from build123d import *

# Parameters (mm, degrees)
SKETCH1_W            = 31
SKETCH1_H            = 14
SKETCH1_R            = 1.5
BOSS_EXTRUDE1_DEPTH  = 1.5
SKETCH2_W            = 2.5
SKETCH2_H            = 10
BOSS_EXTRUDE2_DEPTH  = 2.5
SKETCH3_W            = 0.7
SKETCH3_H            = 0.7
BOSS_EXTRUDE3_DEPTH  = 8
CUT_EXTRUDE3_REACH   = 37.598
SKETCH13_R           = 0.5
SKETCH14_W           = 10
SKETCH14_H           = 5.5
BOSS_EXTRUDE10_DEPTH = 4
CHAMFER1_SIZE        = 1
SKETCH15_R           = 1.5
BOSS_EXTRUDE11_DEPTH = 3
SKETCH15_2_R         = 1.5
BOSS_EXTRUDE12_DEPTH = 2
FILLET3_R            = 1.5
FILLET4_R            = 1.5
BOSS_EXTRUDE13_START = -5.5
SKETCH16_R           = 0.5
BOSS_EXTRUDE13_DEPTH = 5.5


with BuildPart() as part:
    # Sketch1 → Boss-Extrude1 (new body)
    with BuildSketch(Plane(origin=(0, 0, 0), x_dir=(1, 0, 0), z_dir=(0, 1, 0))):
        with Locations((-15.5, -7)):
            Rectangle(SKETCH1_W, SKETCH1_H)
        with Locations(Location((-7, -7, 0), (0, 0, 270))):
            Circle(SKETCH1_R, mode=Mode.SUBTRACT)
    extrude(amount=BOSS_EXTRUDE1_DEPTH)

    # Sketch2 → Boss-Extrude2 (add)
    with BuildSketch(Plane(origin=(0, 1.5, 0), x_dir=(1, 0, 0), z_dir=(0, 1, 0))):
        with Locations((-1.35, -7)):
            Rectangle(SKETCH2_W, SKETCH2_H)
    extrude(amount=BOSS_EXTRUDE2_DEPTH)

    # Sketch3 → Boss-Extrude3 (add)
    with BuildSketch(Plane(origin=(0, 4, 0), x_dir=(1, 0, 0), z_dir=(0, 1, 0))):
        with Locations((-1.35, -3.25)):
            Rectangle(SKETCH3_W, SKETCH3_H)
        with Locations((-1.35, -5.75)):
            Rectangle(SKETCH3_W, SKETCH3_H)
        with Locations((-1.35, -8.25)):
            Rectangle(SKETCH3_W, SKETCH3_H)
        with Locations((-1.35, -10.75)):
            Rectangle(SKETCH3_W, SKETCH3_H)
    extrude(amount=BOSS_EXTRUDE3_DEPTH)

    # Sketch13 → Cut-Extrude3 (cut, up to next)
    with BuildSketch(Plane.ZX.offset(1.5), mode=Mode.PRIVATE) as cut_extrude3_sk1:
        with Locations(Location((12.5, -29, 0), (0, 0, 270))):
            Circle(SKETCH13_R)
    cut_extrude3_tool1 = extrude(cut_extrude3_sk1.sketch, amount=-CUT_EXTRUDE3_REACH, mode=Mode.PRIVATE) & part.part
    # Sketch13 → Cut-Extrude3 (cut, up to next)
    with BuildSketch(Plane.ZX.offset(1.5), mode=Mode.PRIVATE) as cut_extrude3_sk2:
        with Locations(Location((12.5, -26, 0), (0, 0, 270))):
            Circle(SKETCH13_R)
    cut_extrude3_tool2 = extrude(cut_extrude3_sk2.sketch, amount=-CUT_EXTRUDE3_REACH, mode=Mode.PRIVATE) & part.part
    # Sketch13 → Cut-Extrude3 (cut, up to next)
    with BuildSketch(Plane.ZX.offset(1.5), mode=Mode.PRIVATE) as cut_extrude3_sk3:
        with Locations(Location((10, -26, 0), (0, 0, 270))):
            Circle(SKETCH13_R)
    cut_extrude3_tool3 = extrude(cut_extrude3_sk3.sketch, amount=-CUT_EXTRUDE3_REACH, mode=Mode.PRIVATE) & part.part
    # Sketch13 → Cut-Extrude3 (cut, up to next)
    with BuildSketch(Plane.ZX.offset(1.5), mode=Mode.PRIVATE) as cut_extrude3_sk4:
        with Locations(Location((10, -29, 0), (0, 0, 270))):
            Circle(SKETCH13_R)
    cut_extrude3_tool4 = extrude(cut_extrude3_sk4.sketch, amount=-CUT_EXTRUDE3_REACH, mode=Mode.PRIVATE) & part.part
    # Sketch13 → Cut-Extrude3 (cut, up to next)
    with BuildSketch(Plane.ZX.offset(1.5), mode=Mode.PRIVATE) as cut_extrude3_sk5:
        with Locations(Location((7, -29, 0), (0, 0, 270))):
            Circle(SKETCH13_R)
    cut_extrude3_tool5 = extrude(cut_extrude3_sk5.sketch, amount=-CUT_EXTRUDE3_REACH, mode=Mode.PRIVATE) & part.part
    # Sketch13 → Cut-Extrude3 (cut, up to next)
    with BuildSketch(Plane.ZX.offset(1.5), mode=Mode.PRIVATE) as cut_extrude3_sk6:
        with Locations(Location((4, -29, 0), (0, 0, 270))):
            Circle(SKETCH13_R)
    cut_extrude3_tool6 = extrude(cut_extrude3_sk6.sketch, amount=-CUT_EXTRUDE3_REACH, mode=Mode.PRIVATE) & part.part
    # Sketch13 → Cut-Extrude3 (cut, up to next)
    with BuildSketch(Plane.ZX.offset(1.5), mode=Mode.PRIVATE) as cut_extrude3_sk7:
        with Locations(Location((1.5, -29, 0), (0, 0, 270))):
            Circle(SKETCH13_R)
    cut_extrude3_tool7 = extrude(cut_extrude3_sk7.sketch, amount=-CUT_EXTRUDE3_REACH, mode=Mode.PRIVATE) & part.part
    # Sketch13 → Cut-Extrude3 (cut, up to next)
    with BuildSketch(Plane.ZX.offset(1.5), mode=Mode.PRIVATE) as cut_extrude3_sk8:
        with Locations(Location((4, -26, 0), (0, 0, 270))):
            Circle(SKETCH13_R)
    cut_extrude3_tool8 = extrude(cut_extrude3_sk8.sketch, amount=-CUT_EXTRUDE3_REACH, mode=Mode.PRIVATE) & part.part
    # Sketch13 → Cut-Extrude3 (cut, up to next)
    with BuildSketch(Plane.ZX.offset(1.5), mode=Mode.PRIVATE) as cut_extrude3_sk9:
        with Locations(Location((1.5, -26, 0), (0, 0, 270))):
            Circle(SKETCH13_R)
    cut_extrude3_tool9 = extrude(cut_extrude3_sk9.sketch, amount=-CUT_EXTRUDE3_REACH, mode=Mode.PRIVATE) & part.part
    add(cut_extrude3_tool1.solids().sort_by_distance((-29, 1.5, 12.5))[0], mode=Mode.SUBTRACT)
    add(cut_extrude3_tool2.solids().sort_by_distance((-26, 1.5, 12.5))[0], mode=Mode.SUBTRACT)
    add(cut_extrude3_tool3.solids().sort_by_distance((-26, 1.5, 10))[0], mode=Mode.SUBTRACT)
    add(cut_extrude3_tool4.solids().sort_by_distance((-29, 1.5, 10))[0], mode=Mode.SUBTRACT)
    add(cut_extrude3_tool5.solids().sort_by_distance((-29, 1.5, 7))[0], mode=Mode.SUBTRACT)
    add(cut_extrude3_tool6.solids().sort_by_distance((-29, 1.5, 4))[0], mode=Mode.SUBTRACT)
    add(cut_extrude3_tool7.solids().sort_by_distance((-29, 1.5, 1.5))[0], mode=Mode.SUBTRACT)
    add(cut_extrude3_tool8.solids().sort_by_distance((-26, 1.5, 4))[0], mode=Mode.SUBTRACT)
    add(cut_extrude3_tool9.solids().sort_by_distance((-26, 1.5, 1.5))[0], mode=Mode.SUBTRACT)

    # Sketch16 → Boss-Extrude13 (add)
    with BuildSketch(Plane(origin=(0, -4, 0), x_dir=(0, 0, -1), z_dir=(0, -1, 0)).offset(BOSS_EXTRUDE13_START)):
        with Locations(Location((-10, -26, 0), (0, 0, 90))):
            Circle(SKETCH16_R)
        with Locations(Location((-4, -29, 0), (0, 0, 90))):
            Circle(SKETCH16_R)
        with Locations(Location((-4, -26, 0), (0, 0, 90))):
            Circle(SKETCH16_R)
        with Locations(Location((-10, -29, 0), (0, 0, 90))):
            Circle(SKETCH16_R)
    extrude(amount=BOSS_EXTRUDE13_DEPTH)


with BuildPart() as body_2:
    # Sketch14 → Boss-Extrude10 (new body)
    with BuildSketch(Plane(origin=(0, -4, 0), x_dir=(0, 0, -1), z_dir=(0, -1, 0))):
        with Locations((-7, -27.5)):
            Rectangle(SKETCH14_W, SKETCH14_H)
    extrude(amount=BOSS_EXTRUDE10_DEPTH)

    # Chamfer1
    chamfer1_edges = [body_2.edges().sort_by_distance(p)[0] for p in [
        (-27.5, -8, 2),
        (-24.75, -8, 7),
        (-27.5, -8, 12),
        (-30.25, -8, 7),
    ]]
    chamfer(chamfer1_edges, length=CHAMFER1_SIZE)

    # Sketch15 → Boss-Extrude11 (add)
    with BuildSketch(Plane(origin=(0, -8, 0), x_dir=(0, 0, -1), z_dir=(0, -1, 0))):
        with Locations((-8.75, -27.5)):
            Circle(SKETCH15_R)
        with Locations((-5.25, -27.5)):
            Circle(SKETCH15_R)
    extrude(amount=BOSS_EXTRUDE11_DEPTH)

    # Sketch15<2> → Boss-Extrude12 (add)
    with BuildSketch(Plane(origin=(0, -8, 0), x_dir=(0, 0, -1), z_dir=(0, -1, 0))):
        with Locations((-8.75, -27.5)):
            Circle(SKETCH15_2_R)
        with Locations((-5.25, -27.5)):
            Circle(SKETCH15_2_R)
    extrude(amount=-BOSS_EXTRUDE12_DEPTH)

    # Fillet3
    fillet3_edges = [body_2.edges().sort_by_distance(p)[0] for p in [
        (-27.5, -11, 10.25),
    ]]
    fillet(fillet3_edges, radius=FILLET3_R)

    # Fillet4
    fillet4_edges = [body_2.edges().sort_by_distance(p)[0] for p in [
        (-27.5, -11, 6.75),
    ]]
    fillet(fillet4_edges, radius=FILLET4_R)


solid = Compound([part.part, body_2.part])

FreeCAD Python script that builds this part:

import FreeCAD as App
import Part
import Sketcher
from FreeCAD import Vector
Q = App.Units.Quantity


def edges_at(feature, points):
    """Names of the edges that pass closest to the given points."""
    edges = feature.Shape.Edges
    near = lambda p: min(range(len(edges)), key=lambda i: edges[i].distToShape(Part.Vertex(*p))[0])
    return sorted({f"Edge{near(p) + 1}" for p in points})

doc = App.newDocument("Part")
body = doc.addObject("PartDesign::Body", "Body")

# Sketch on XZ plane
sketch1 = body.newObject("Sketcher::SketchObject", "Sketch")
sketch1.AttachmentSupport = (doc.getObject("XZ_Plane"), [""])
sketch1.MapMode = "FlatFace"
sketch1.addGeometry([
    Part.LineSegment(Vector(-31, 0, 0), Vector(-31, 14, 0)),  # 0
    Part.LineSegment(Vector(-31, 14, 0), Vector(0, 14, 0)),  # 1
    Part.LineSegment(Vector(0, 14, 0), Vector(0, 0, 0)),  # 2
    Part.LineSegment(Vector(0, 0, 0), Vector(-31, 0, 0)),  # 3
    Part.Circle(Vector(-7, 7, 0), Vector(0, 0, 1), 1.5),  # 4
], False)
sketch1.addConstraint([
    Sketcher.Constraint("Coincident", 0, 2, 1, 1),
    Sketcher.Constraint("Coincident", 1, 2, 2, 1),
    Sketcher.Constraint("Coincident", 2, 2, 3, 1),
    Sketcher.Constraint("Coincident", 3, 2, 0, 1),
    Sketcher.Constraint("Vertical", 0),
    Sketcher.Constraint("Horizontal", 1),
    Sketcher.Constraint("Vertical", 2),
    Sketcher.Constraint("Horizontal", 3),
    Sketcher.Constraint("Coincident", 2, 2, -1, 1),
    Sketcher.Constraint("Diameter", 4, Q("3 mm")),
    Sketcher.Constraint("DistanceX", 1, 1, 1, 2, Q("31 mm")),
    Sketcher.Constraint("DistanceY", 0, 1, 0, 2, Q("14 mm")),
    Sketcher.Constraint("DistanceX", 4, 3, -1, 1, Q("7 mm")),
    Sketcher.Constraint("DistanceY", -1, 1, 4, 3, Q("7 mm")),
])
pad1 = body.newObject("PartDesign::Pad", "Pad")
pad1.Profile = sketch1
pad1.Length = 1.5
pad1.Reversed = True

# Sketch on XZ plane
sketch2 = body.newObject("Sketcher::SketchObject", "Sketch001")
sketch2.AttachmentSupport = (doc.getObject("XZ_Plane"), [""])
sketch2.MapMode = "FlatFace"
sketch2.AttachmentOffset = App.Placement(Vector(0, 0, -1.5), App.Rotation())
sketch2.addGeometry([
    Part.LineSegment(Vector(-2.6, 2, 0), Vector(-2.6, 12, 0)),
    Part.LineSegment(Vector(-2.6, 12, 0), Vector(-0.1, 12, 0)),
    Part.LineSegment(Vector(-0.1, 12, 0), Vector(-0.1, 2, 0)),
    Part.LineSegment(Vector(-0.1, 2, 0), Vector(-2.6, 2, 0)),
], False)
sketch2.addConstraint([
    Sketcher.Constraint("Coincident", 0, 2, 1, 1),
    Sketcher.Constraint("Coincident", 1, 2, 2, 1),
    Sketcher.Constraint("Coincident", 2, 2, 3, 1),
    Sketcher.Constraint("Coincident", 3, 2, 0, 1),
    Sketcher.Constraint("Vertical", 0),
    Sketcher.Constraint("Horizontal", 1),
    Sketcher.Constraint("Vertical", 2),
    Sketcher.Constraint("Horizontal", 3),
    Sketcher.Constraint("DistanceY", 0, 1, 0, 2, Q("10 mm")),
    Sketcher.Constraint("DistanceX", 1, 1, 1, 2, Q("2.5 mm")),
    Sketcher.Constraint("DistanceY", -1, 1, 0, 2, Q("12 mm")),
    Sketcher.Constraint("DistanceX", 0, 2, -1, 1, Q("2.6 mm")),
])
pad2 = body.newObject("PartDesign::Pad", "Pad001")
pad2.Profile = sketch2
pad2.Length = 2.5
pad2.Reversed = True

# Sketch on XZ plane
sketch3 = body.newObject("Sketcher::SketchObject", "Sketch002")
sketch3.AttachmentSupport = (doc.getObject("XZ_Plane"), [""])
sketch3.MapMode = "FlatFace"
sketch3.AttachmentOffset = App.Placement(Vector(0, 0, -4), App.Rotation())
sketch3.addGeometry([
    Part.LineSegment(Vector(-1.7, 2.9, 0), Vector(-1.7, 3.6, 0)),  # 0
    Part.LineSegment(Vector(-1.7, 3.6, 0), Vector(-1, 3.6, 0)),  # 1
    Part.LineSegment(Vector(-1, 3.6, 0), Vector(-1, 2.9, 0)),  # 2
    Part.LineSegment(Vector(-1, 2.9, 0), Vector(-1.7, 2.9, 0)),  # 3
    Part.LineSegment(Vector(-1.7, 5.4, 0), Vector(-1.7, 6.1, 0)),  # 4
    Part.LineSegment(Vector(-1.7, 6.1, 0), Vector(-1, 6.1, 0)),  # 5
    Part.LineSegment(Vector(-1, 6.1, 0), Vector(-1, 5.4, 0)),  # 6
    Part.LineSegment(Vector(-1, 5.4, 0), Vector(-1.7, 5.4, 0)),  # 7
    Part.LineSegment(Vector(-1.7, 7.9, 0), Vector(-1.7, 8.6, 0)),  # 8
    Part.LineSegment(Vector(-1.7, 8.6, 0), Vector(-1, 8.6, 0)),  # 9
    Part.LineSegment(Vector(-1, 8.6, 0), Vector(-1, 7.9, 0)),  # 10
    Part.LineSegment(Vector(-1, 7.9, 0), Vector(-1.7, 7.9, 0)),  # 11
    Part.LineSegment(Vector(-1.7, 10.4, 0), Vector(-1.7, 11.1, 0)),  # 12
    Part.LineSegment(Vector(-1.7, 11.1, 0), Vector(-1, 11.1, 0)),  # 13
    Part.LineSegment(Vector(-1, 11.1, 0), Vector(-1, 10.4, 0)),  # 14
    Part.LineSegment(Vector(-1, 10.4, 0), Vector(-1.7, 10.4, 0)),  # 15
], False)
sketch3.addConstraint([
    Sketcher.Constraint("Coincident", 0, 2, 1, 1),
    Sketcher.Constraint("Coincident", 1, 2, 2, 1),
    Sketcher.Constraint("Coincident", 2, 2, 3, 1),
    Sketcher.Constraint("Coincident", 3, 2, 0, 1),
    Sketcher.Constraint("Coincident", 4, 2, 5, 1),
    Sketcher.Constraint("Coincident", 5, 2, 6, 1),
    Sketcher.Constraint("Coincident", 6, 2, 7, 1),
    Sketcher.Constraint("Coincident", 7, 2, 4, 1),
    Sketcher.Constraint("Coincident", 8, 2, 9, 1),
    Sketcher.Constraint("Coincident", 9, 2, 10, 1),
    Sketcher.Constraint("Coincident", 10, 2, 11, 1),
    Sketcher.Constraint("Coincident", 11, 2, 8, 1),
    Sketcher.Constraint("Coincident", 12, 2, 13, 1),
    Sketcher.Constraint("Coincident", 13, 2, 14, 1),
    Sketcher.Constraint("Coincident", 14, 2, 15, 1),
    Sketcher.Constraint("Coincident", 15, 2, 12, 1),
    Sketcher.Constraint("Vertical", 0),
    Sketcher.Constraint("Horizontal", 1),
    Sketcher.Constraint("Vertical", 2),
    Sketcher.Constraint("Horizontal", 3),
    Sketcher.Constraint("Vertical", 4),
    Sketcher.Constraint("Horizontal", 5),
    Sketcher.Constraint("Vertical", 6),
    Sketcher.Constraint("Horizontal", 7),
    Sketcher.Constraint("Vertical", 8),
    Sketcher.Constraint("Horizontal", 9),
    Sketcher.Constraint("Vertical", 10),
    Sketcher.Constraint("Horizontal", 11),
    Sketcher.Constraint("Vertical", 12),
    Sketcher.Constraint("Horizontal", 13),
    Sketcher.Constraint("Vertical", 14),
    Sketcher.Constraint("Horizontal", 15),
    Sketcher.Constraint("Vertical", 3, 2, 4, 2),
    Sketcher.Constraint("Vertical", 2, 2, 5, 2),
    Sketcher.Constraint("Vertical", 7, 2, 8, 2),
    Sketcher.Constraint("Vertical", 6, 2, 9, 2),
    Sketcher.Constraint("Vertical", 11, 2, 12, 2),
    Sketcher.Constraint("Vertical", 10, 2, 13, 2),
    Sketcher.Constraint("Equal", 15, 0),
    Sketcher.Constraint("Equal", 2, 4),
    Sketcher.Constraint("Equal", 6, 8),
    Sketcher.Constraint("Equal", 10, 12),
    Sketcher.Constraint("DistanceX", 1, 1, 1, 2, Q("0.7 mm")),
    Sketcher.Constraint("DistanceX", 1, 2, -1, 1, Q("1 mm")),
    Sketcher.Constraint("DistanceY", 0, 2, 8, 2, Q("5 mm")),
    Sketcher.Constraint("DistanceY", 4, 2, 12, 2, Q("5 mm")),
    Sketcher.Constraint("DistanceY", -1, 1, 0, 2, Q("3.6 mm")),
    Sketcher.Constraint("DistanceY", -1, 1, 4, 2, Q("6.1 mm")),
])
pad3 = body.newObject("PartDesign::Pad", "Pad002")
pad3.Profile = sketch3
pad3.Length = 8
pad3.Reversed = True

# Sketch on XZ plane
sketch4 = body.newObject("Sketcher::SketchObject", "Sketch003")
sketch4.AttachmentSupport = (doc.getObject("XZ_Plane"), [""])
sketch4.MapMode = "FlatFace"
sketch4.AttachmentOffset = App.Placement(Vector(0, 0, -1.5), App.Rotation())
sketch4.addGeometry(Part.Circle(Vector(-29, 12.5, 0), Vector(0, 0, 1), 0.5), False)
sketch4.addConstraint([
    Sketcher.Constraint("Diameter", 0, Q("1 mm")),
    Sketcher.Constraint("DistanceX", 0, 3, -1, 1, Q("29 mm")),
    Sketcher.Constraint("DistanceY", -1, 1, 0, 3, Q("12.5 mm")),
])
pocket1 = body.newObject("PartDesign::Pocket", "Pocket")
pocket1.Profile = sketch4
pocket1.Type = "UpToFirst"
pocket1.Reversed = True

# Sketch on XZ plane
sketch5 = body.newObject("Sketcher::SketchObject", "Sketch004")
sketch5.AttachmentSupport = (doc.getObject("XZ_Plane"), [""])
sketch5.MapMode = "FlatFace"
sketch5.AttachmentOffset = App.Placement(Vector(0, 0, -1.5), App.Rotation())
sketch5.addGeometry(Part.Circle(Vector(-26, 12.5, 0), Vector(0, 0, 1), 0.5), False)
sketch5.addConstraint([
    Sketcher.Constraint("Diameter", 0, Q("1 mm")),
    Sketcher.Constraint("DistanceX", 0, 3, -1, 1, Q("26 mm")),
    Sketcher.Constraint("DistanceY", -1, 1, 0, 3, Q("12.5 mm")),
])
pocket2 = body.newObject("PartDesign::Pocket", "Pocket001")
pocket2.Profile = sketch5
pocket2.Type = "UpToFirst"
pocket2.Reversed = True

# Sketch on XZ plane
sketch6 = body.newObject("Sketcher::SketchObject", "Sketch005")
sketch6.AttachmentSupport = (doc.getObject("XZ_Plane"), [""])
sketch6.MapMode = "FlatFace"
sketch6.AttachmentOffset = App.Placement(Vector(0, 0, -1.5), App.Rotation())
sketch6.addGeometry(Part.Circle(Vector(-26, 10, 0), Vector(0, 0, 1), 0.5), False)
sketch6.addConstraint([
    Sketcher.Constraint("Diameter", 0, Q("1 mm")),
    Sketcher.Constraint("DistanceX", 0, 3, -1, 1, Q("26 mm")),
    Sketcher.Constraint("DistanceY", -1, 1, 0, 3, Q("10 mm")),
])
pocket3 = body.newObject("PartDesign::Pocket", "Pocket002")
pocket3.Profile = sketch6
pocket3.Type = "UpToFirst"
pocket3.Reversed = True

# Sketch on XZ plane
sketch7 = body.newObject("Sketcher::SketchObject", "Sketch006")
sketch7.AttachmentSupport = (doc.getObject("XZ_Plane"), [""])
sketch7.MapMode = "FlatFace"
sketch7.AttachmentOffset = App.Placement(Vector(0, 0, -1.5), App.Rotation())
sketch7.addGeometry(Part.Circle(Vector(-29, 10, 0), Vector(0, 0, 1), 0.5), False)
sketch7.addConstraint([
    Sketcher.Constraint("Diameter", 0, Q("1 mm")),
    Sketcher.Constraint("DistanceX", 0, 3, -1, 1, Q("29 mm")),
    Sketcher.Constraint("DistanceY", -1, 1, 0, 3, Q("10 mm")),
])
pocket4 = body.newObject("PartDesign::Pocket", "Pocket003")
pocket4.Profile = sketch7
pocket4.Type = "UpToFirst"
pocket4.Reversed = True

# Sketch on XZ plane
sketch8 = body.newObject("Sketcher::SketchObject", "Sketch007")
sketch8.AttachmentSupport = (doc.getObject("XZ_Plane"), [""])
sketch8.MapMode = "FlatFace"
sketch8.AttachmentOffset = App.Placement(Vector(0, 0, -1.5), App.Rotation())
sketch8.addGeometry(Part.Circle(Vector(-29, 7, 0), Vector(0, 0, 1), 0.5), False)
sketch8.addConstraint([
    Sketcher.Constraint("Diameter", 0, Q("1 mm")),
    Sketcher.Constraint("DistanceX", 0, 3, -1, 1, Q("29 mm")),
    Sketcher.Constraint("DistanceY", -1, 1, 0, 3, Q("7 mm")),
])
pocket5 = body.newObject("PartDesign::Pocket", "Pocket004")
pocket5.Profile = sketch8
pocket5.Type = "UpToFirst"
pocket5.Reversed = True

# Sketch on XZ plane
sketch9 = body.newObject("Sketcher::SketchObject", "Sketch008")
sketch9.AttachmentSupport = (doc.getObject("XZ_Plane"), [""])
sketch9.MapMode = "FlatFace"
sketch9.AttachmentOffset = App.Placement(Vector(0, 0, -1.5), App.Rotation())
sketch9.addGeometry(Part.Circle(Vector(-29, 4, 0), Vector(0, 0, 1), 0.5), False)
sketch9.addConstraint([
    Sketcher.Constraint("Diameter", 0, Q("1 mm")),
    Sketcher.Constraint("DistanceX", 0, 3, -1, 1, Q("29 mm")),
    Sketcher.Constraint("DistanceY", -1, 1, 0, 3, Q("4 mm")),
])
pocket6 = body.newObject("PartDesign::Pocket", "Pocket005")
pocket6.Profile = sketch9
pocket6.Type = "UpToFirst"
pocket6.Reversed = True

# Sketch on XZ plane
sketch10 = body.newObject("Sketcher::SketchObject", "Sketch009")
sketch10.AttachmentSupport = (doc.getObject("XZ_Plane"), [""])
sketch10.MapMode = "FlatFace"
sketch10.AttachmentOffset = App.Placement(Vector(0, 0, -1.5), App.Rotation())
sketch10.addGeometry(Part.Circle(Vector(-29, 1.5, 0), Vector(0, 0, 1), 0.5), False)
sketch10.addConstraint([
    Sketcher.Constraint("Diameter", 0, Q("1 mm")),
    Sketcher.Constraint("DistanceX", 0, 3, -1, 1, Q("29 mm")),
    Sketcher.Constraint("DistanceY", -1, 1, 0, 3, Q("1.5 mm")),
])
pocket7 = body.newObject("PartDesign::Pocket", "Pocket006")
pocket7.Profile = sketch10
pocket7.Type = "UpToFirst"
pocket7.Reversed = True

# Sketch on XZ plane
sketch11 = body.newObject("Sketcher::SketchObject", "Sketch010")
sketch11.AttachmentSupport = (doc.getObject("XZ_Plane"), [""])
sketch11.MapMode = "FlatFace"
sketch11.AttachmentOffset = App.Placement(Vector(0, 0, -1.5), App.Rotation())
sketch11.addGeometry(Part.Circle(Vector(-26, 4, 0), Vector(0, 0, 1), 0.5), False)
sketch11.addConstraint([
    Sketcher.Constraint("Diameter", 0, Q("1 mm")),
    Sketcher.Constraint("DistanceX", 0, 3, -1, 1, Q("26 mm")),
    Sketcher.Constraint("DistanceY", -1, 1, 0, 3, Q("4 mm")),
])
pocket8 = body.newObject("PartDesign::Pocket", "Pocket007")
pocket8.Profile = sketch11
pocket8.Type = "UpToFirst"
pocket8.Reversed = True

# Sketch on XZ plane
sketch12 = body.newObject("Sketcher::SketchObject", "Sketch011")
sketch12.AttachmentSupport = (doc.getObject("XZ_Plane"), [""])
sketch12.MapMode = "FlatFace"
sketch12.AttachmentOffset = App.Placement(Vector(0, 0, -1.5), App.Rotation())
sketch12.addGeometry(Part.Circle(Vector(-26, 1.5, 0), Vector(0, 0, 1), 0.5), False)
sketch12.addConstraint([
    Sketcher.Constraint("Diameter", 0, Q("1 mm")),
    Sketcher.Constraint("DistanceX", 0, 3, -1, 1, Q("26 mm")),
    Sketcher.Constraint("DistanceY", -1, 1, 0, 3, Q("1.5 mm")),
])
pocket9 = body.newObject("PartDesign::Pocket", "Pocket008")
pocket9.Profile = sketch12
pocket9.Type = "UpToFirst"
pocket9.Reversed = True

# Sketch on XZ plane
sketch13 = body.newObject("Sketcher::SketchObject", "Sketch012")
sketch13.AttachmentSupport = (doc.getObject("XZ_Plane"), [""])
sketch13.MapMode = "FlatFace"
sketch13.AttachmentOffset = App.Placement(Vector(0, 0, -1.5), App.Rotation())
sketch13.addGeometry([
    Part.Circle(Vector(-26, 10, 0), Vector(0, 0, 1), 0.5),
    Part.Circle(Vector(-29, 4, 0), Vector(0, 0, 1), 0.5),
    Part.Circle(Vector(-26, 4, 0), Vector(0, 0, 1), 0.5),
    Part.Circle(Vector(-29, 10, 0), Vector(0, 0, 1), 0.5),
], False)
sketch13.addConstraint([
    Sketcher.Constraint("Equal", 0, 1),
    Sketcher.Constraint("Equal", 1, 2),
    Sketcher.Constraint("Equal", 2, 3),
    Sketcher.Constraint("Horizontal", 1, 3, 2, 3),
    Sketcher.Constraint("Horizontal", 0, 3, 3, 3),
    Sketcher.Constraint("Vertical", 0, 3, 2, 3),
    Sketcher.Constraint("Vertical", 1, 3, 3, 3),
    Sketcher.Constraint("Diameter", 0, Q("1 mm")),
    Sketcher.Constraint("DistanceX", 0, 3, -1, 1, Q("26 mm")),
    Sketcher.Constraint("DistanceY", -1, 1, 0, 3, Q("10 mm")),
    Sketcher.Constraint("DistanceX", 1, 3, -1, 1, Q("29 mm")),
    Sketcher.Constraint("DistanceY", -1, 1, 1, 3, Q("4 mm")),
])
pad4 = body.newObject("PartDesign::Pad", "Pad003")
pad4.Profile = sketch13
pad4.Length = 5.5
body2 = doc.addObject("PartDesign::Body", "Body001")

# Sketch on XZ plane
sketch14 = body2.newObject("Sketcher::SketchObject", "Sketch013")
sketch14.AttachmentSupport = (doc.getObject("XZ_Plane001"), [""])
sketch14.MapMode = "FlatFace"
sketch14.AttachmentOffset = App.Placement(Vector(0, 0, 4), App.Rotation())
sketch14.addGeometry([
    Part.LineSegment(Vector(-24.75, 12, 0), Vector(-30.25, 12, 0)),
    Part.LineSegment(Vector(-30.25, 12, 0), Vector(-30.25, 2, 0)),
    Part.LineSegment(Vector(-30.25, 2, 0), Vector(-24.75, 2, 0)),
    Part.LineSegment(Vector(-24.75, 2, 0), Vector(-24.75, 12, 0)),
], False)
sketch14.addConstraint([
    Sketcher.Constraint("Coincident", 0, 2, 1, 1),
    Sketcher.Constraint("Coincident", 1, 2, 2, 1),
    Sketcher.Constraint("Coincident", 2, 2, 3, 1),
    Sketcher.Constraint("Coincident", 3, 2, 0, 1),
    Sketcher.Constraint("Horizontal", 0),
    Sketcher.Constraint("Vertical", 1),
    Sketcher.Constraint("Horizontal", 2),
    Sketcher.Constraint("Vertical", 3),
    Sketcher.Constraint("DistanceY", 1, 2, 1, 1, Q("10 mm")),
    Sketcher.Constraint("DistanceX", 0, 2, 0, 1, Q("5.5 mm")),
    Sketcher.Constraint("DistanceY", -1, 1, 0, 2, Q("12 mm")),
    Sketcher.Constraint("DistanceX", 0, 2, -1, 1, Q("30.25 mm")),
])
pad5 = body2.newObject("PartDesign::Pad", "Pad004")
pad5.Profile = sketch14
pad5.Length = 4
doc.recompute()

chamfer = body2.newObject("PartDesign::Chamfer", "Chamfer")
chamfer.Base = (pad5, edges_at(pad5, [
    (-27.5, -8, 2),
    (-24.75, -8, 7),
    (-27.5, -8, 12),
    (-30.25, -8, 7),
]))
chamfer.Size = 1

# Sketch on XZ plane
sketch15 = body2.newObject("Sketcher::SketchObject", "Sketch014")
sketch15.AttachmentSupport = (doc.getObject("XZ_Plane001"), [""])
sketch15.MapMode = "FlatFace"
sketch15.AttachmentOffset = App.Placement(Vector(0, 0, 8), App.Rotation())
sketch15.addGeometry([
    Part.Circle(Vector(-27.5, 8.75, 0), Vector(0, 0, 1), 1.5),
    Part.Circle(Vector(-27.5, 5.25, 0), Vector(0, 0, 1), 1.5),
], False)
sketch15.addConstraint([
    Sketcher.Constraint("Equal", 0, 1),
    Sketcher.Constraint("Vertical", 0, 3, 1, 3),
    Sketcher.Constraint("Diameter", 0, Q("3 mm")),
    Sketcher.Constraint("DistanceX", 0, 3, -1, 1, Q("27.5 mm")),
    Sketcher.Constraint("DistanceY", 1, 3, 0, 3, Q("3.5 mm")),
    Sketcher.Constraint("DistanceY", -1, 1, 0, 3, Q("8.75 mm")),
])
pad6 = body2.newObject("PartDesign::Pad", "Pad005")
pad6.Profile = sketch15
pad6.Length = 3

# Sketch on XZ plane
sketch16 = body2.newObject("Sketcher::SketchObject", "Sketch015")
sketch16.AttachmentSupport = (doc.getObject("XZ_Plane001"), [""])
sketch16.MapMode = "FlatFace"
sketch16.AttachmentOffset = App.Placement(Vector(0, 0, 8), App.Rotation())
sketch16.addGeometry([
    Part.Circle(Vector(-27.5, 8.75, 0), Vector(0, 0, 1), 1.5),
    Part.Circle(Vector(-27.5, 5.25, 0), Vector(0, 0, 1), 1.5),
], False)
sketch16.addConstraint([
    Sketcher.Constraint("Equal", 0, 1),
    Sketcher.Constraint("Vertical", 0, 3, 1, 3),
    Sketcher.Constraint("Diameter", 0, Q("3 mm")),
    Sketcher.Constraint("DistanceX", 0, 3, -1, 1, Q("27.5 mm")),
    Sketcher.Constraint("DistanceY", 1, 3, 0, 3, Q("3.5 mm")),
    Sketcher.Constraint("DistanceY", -1, 1, 0, 3, Q("8.75 mm")),
])
pad7 = body2.newObject("PartDesign::Pad", "Pad006")
pad7.Profile = sketch16
pad7.Length = 2
pad7.Reversed = True
doc.recompute()

fillet = body2.newObject("PartDesign::Fillet", "Fillet")
fillet.Base = (pad7, edges_at(pad7, [(-27.5, -11, 10.25)]))
fillet.Radius = 1.5
doc.recompute()

fillet2 = body2.newObject("PartDesign::Fillet", "Fillet001")
fillet2.Base = (fillet, edges_at(fillet, [(-27.5, -11, 6.75)]))
fillet2.Radius = 1.5

doc.recompute()
